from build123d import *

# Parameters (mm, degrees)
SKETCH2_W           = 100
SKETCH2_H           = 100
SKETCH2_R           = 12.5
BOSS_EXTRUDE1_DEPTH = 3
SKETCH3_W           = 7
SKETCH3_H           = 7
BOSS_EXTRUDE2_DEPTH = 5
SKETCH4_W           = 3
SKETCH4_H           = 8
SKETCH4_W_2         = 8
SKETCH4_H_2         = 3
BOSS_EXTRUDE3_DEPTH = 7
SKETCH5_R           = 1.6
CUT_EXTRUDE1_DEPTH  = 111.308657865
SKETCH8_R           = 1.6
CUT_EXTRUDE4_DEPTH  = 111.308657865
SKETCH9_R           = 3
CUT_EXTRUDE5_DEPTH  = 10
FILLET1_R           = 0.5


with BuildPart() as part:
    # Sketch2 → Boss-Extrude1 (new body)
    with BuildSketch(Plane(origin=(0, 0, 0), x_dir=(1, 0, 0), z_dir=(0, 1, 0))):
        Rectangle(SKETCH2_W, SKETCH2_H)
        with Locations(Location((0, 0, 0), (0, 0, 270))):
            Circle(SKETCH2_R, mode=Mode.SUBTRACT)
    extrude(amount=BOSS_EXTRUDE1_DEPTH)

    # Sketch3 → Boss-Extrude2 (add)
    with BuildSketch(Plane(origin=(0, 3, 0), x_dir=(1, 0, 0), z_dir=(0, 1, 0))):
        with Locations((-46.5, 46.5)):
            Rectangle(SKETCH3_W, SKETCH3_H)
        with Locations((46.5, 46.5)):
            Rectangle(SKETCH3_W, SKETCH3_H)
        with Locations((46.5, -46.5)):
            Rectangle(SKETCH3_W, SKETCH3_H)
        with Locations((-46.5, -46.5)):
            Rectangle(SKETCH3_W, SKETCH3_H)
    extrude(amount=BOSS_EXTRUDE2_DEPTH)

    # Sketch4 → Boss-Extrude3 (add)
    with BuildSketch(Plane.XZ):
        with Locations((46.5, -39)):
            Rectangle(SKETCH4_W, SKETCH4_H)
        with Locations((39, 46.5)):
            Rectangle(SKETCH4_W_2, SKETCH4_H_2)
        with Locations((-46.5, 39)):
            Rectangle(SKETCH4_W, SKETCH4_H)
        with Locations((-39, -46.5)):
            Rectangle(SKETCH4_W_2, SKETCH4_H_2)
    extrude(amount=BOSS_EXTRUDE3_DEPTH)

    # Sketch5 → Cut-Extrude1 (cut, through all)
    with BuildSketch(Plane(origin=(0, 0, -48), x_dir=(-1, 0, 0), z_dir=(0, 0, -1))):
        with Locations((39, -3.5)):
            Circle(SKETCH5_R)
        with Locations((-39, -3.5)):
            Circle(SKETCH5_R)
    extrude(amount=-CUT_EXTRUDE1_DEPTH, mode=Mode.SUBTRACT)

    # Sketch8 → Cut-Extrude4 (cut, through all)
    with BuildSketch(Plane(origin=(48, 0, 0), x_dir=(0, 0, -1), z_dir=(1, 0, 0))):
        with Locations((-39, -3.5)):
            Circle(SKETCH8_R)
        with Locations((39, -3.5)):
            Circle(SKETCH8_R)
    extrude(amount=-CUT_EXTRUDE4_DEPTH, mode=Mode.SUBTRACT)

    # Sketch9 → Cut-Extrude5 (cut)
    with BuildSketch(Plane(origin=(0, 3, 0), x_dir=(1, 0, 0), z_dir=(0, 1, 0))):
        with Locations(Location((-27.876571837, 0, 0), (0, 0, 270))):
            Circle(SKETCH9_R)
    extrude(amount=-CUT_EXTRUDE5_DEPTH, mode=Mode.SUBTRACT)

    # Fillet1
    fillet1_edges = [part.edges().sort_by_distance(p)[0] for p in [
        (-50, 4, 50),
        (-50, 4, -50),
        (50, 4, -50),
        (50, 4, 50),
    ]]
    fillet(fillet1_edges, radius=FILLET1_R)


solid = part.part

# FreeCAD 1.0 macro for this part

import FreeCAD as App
import Part
import Sketcher
from FreeCAD import Vector


def edges_at(feature, points):
    """Names of the edges that pass closest to the given points."""
    edges = feature.Shape.Edges
    near = lambda p: min(range(len(edges)), key=lambda i: edges[i].distToShape(Part.Vertex(*p))[0])
    return sorted({f"Edge{near(p) + 1}" for p in points})


def add_polygon(sketch, points):
    """Adds a closed chain of lines whose ends are joined by coincident constraints."""
    first, n = sketch.GeometryCount, len(points)
    for a, b in zip(points, points[1:] + points[:1]):
        sketch.addGeometry(Part.LineSegment(App.Vector(*a, 0), App.Vector(*b, 0)), False)
    for i in range(n):
        sketch.addConstraint(Sketcher.Constraint("Coincident", first + i, 2, first + (i + 1) % n, 1))

doc = App.newDocument("Part")
body = doc.addObject("PartDesign::Body", "Body")

# Sketch on XZ plane
sketch1 = body.newObject("Sketcher::SketchObject", "Sketch")
sketch1.AttachmentSupport = (doc.getObject("XZ_Plane"), [""])
sketch1.MapMode = "FlatFace"
add_polygon(sketch1, [(-50, -50), (-50, 50), (50, 50), (50, -50)])  # lines 0-3
sketch1.addGeometry(Part.Circle(Vector(0, 0, 0), Vector(0, 0, 1), 12.5), False)  # 4
sketch1.addConstraint([
    Sketcher.Constraint("Vertical", 0),
    Sketcher.Constraint("Horizontal", 1),
    Sketcher.Constraint("Vertical", 2),
    Sketcher.Constraint("Horizontal", 3),
    Sketcher.Constraint("Coincident", 4, 3, -1, 1),
    Sketcher.Constraint("Symmetric", 0, 2, 2, 2, -1, 1),
    Sketcher.Constraint("Equal", 3, 0),
    Sketcher.Constraint("Diameter", 4, 25.0),
    Sketcher.Constraint("DistanceX", 1, 1, 1, 2, 100.0),
])
pad1 = body.newObject("PartDesign::Pad", "Pad")
pad1.Profile = sketch1
pad1.Length = 3
pad1.Reversed = True

# Sketch on XZ plane
sketch2 = body.newObject("Sketcher::SketchObject", "Sketch001")
sketch2.AttachmentSupport = (doc.getObject("XZ_Plane"), [""])
sketch2.MapMode = "FlatFace"
sketch2.AttachmentOffset = App.Placement(Vector(0, 0, -3), App.Rotation())
add_polygon(sketch2, [(-50, -50), (-50, -43), (-43, -43), (-43, -50)])  # lines 0-3
add_polygon(sketch2, [(43, -50), (43, -43), (50, -43), (50, -50)])  # lines 4-7
add_polygon(sketch2, [(43, 43), (43, 50), (50, 50), (50, 43)])  # lines 8-11
add_polygon(sketch2, [(-50, 43), (-50, 50), (-43, 50), (-43, 43)])  # lines 12-15
sketch2.addConstraint([
    Sketcher.Constraint("Vertical", 0),
    Sketcher.Constraint("Horizontal", 1),
    Sketcher.Constraint("Vertical", 2),
    Sketcher.Constraint("Horizontal", 3),
    Sketcher.Constraint("Vertical", 4),
    Sketcher.Constraint("Horizontal", 5),
    Sketcher.Constraint("Vertical", 6),
    Sketcher.Constraint("Horizontal", 7),
    Sketcher.Constraint("Vertical", 8),
    Sketcher.Constraint("Horizontal", 9),
    Sketcher.Constraint("Vertical", 10),
    Sketcher.Constraint("Horizontal", 11),
    Sketcher.Constraint("Vertical", 12),
    Sketcher.Constraint("Horizontal", 13),
    Sketcher.Constraint("Vertical", 14),
    Sketcher.Constraint("Horizontal", 15),
    Sketcher.Constraint("Symmetric", 2, 2, 8, 2, -1, 1),
    Sketcher.Constraint("Symmetric", 0, 2, 10, 2, -1, 1),
    Sketcher.Constraint("Symmetric", 6, 2, 12, 2, -1, 1),
    Sketcher.Constraint("Symmetric", 4, 2, 14, 2, -1, 1),
    Sketcher.Constraint("Symmetric", 1, 2, 4, 2, -2),
    Sketcher.Constraint("Symmetric", 3, 2, 6, 2, -2),
    Sketcher.Constraint("Equal", 15, 0),
    Sketcher.Constraint("DistanceX", 1, 1, 1, 2, 7.0),
    Sketcher.Constraint("DistanceX", 0, 2, -1, 1, 50.0),
    Sketcher.Constraint("DistanceY", 0, 2, -1, 1, 43.0),
])
pad2 = body.newObject("PartDesign::Pad", "Pad001")
pad2.Profile = sketch2
pad2.Length = 5
pad2.Reversed = True

# Sketch on XZ plane
sketch3 = body.newObject("Sketcher::SketchObject", "Sketch002")
sketch3.AttachmentSupport = (doc.getObject("XZ_Plane"), [""])
sketch3.MapMode = "FlatFace"
add_polygon(sketch3, [(45, -35), (45, -43), (48, -43), (48, -35)])  # lines 0-3
add_polygon(sketch3, [(35, 48), (35, 45), (43, 45), (43, 48)])  # lines 4-7
add_polygon(sketch3, [(-48, 43), (-48, 35), (-45, 35), (-45, 43)])  # lines 8-11
add_polygon(sketch3, [(-43, -45), (-43, -48), (-35, -48), (-35, -45)])  # lines 12-15
sketch3.addConstraint([
    Sketcher.Constraint("Vertical", 0),
    Sketcher.Constraint("Horizontal", 1),
    Sketcher.Constraint("Vertical", 2),
    Sketcher.Constraint("Horizontal", 3),
    Sketcher.Constraint("Vertical", 4),
    Sketcher.Constraint("Horizontal", 5),
    Sketcher.Constraint("Vertical", 6),
    Sketcher.Constraint("Horizontal", 7),
    Sketcher.Constraint("Vertical", 8),
    Sketcher.Constraint("Horizontal", 9),
    Sketcher.Constraint("Vertical", 10),
    Sketcher.Constraint("Horizontal", 11),
    Sketcher.Constraint("Vertical", 12),
    Sketcher.Constraint("Horizontal", 13),
    Sketcher.Constraint("Vertical", 14),
    Sketcher.Constraint("Horizontal", 15),
    Sketcher.Constraint("Symmetric", 2, 2, 8, 2, -1, 1),
    Sketcher.Constraint("Symmetric", 0, 2, 10, 2, -1, 1),
    Sketcher.Constraint("Symmetric", 6, 2, 12, 2, -1, 1),
    Sketcher.Constraint("Symmetric", 4, 2, 14, 2, -1, 1),
    Sketcher.Constraint("Equal", 15, 0),
    Sketcher.Constraint("Equal", 11, 4),
    Sketcher.Constraint("DistanceX", 1, 1, 1, 2, 3.0),
    Sketcher.Constraint("DistanceX", 5, 1, 5, 2, 8.0),
    Sketcher.Constraint("DistanceX", -1, 1, 0, 2, 45.0),
    Sketcher.Constraint("DistanceY", 0, 2, -1, 1, 43.0),
    Sketcher.Constraint("DistanceX", -1, 1, 4, 2, 35.0),
    Sketcher.Constraint("DistanceY", -1, 1, 4, 2, 45.0),
])
pad3 = body.newObject("PartDesign::Pad", "Pad002")
pad3.Profile = sketch3
pad3.Length = 7

# Sketch on XY plane
sketch4 = body.newObject("Sketcher::SketchObject", "Sketch003")
sketch4.AttachmentSupport = (doc.getObject("XY_Plane"), [""])
sketch4.MapMode = "FlatFace"
sketch4.AttachmentOffset = App.Placement(Vector(0, 0, -48), App.Rotation())
sketch4.addGeometry([
    Part.Circle(Vector(-39, -3.5, 0), Vector(0, 0, 1), 1.6),
    Part.Circle(Vector(39, -3.5, 0), Vector(0, 0, 1), 1.6),
], False)
sketch4.addConstraint([
    Sketcher.Constraint("Equal", 0, 1),
    Sketcher.Constraint("Symmetric", 0, 3, 1, 3, -2),
    Sketcher.Constraint("Diameter", 0, 3.2),
    Sketcher.Constraint("DistanceX", 0, 3, -1, 1, 39.0),
    Sketcher.Constraint("DistanceY", 0, 3, -1, 1, 3.5),
])
pocket1 = body.newObject("PartDesign::Pocket", "Pocket")
pocket1.Profile = sketch4
pocket1.Type = "ThroughAll"
pocket1.Reversed = True

# Sketch on YZ plane
sketch5 = body.newObject("Sketcher::SketchObject", "Sketch004")
sketch5.AttachmentSupport = (doc.getObject("YZ_Plane"), [""])
sketch5.MapMode = "FlatFace"
sketch5.AttachmentOffset = App.Placement(Vector(0, 0, 48), App.Rotation())
sketch5.addGeometry([
    Part.Circle(Vector(-3.5, 39, 0), Vector(0, 0, 1), 1.6),
    Part.Circle(Vector(-3.5, -39, 0), Vector(0, 0, 1), 1.6),
], False)
sketch5.addConstraint([
    Sketcher.Constraint("Equal", 0, 1),
    Sketcher.Constraint("Symmetric", 0, 3, 1, 3, -1),
    Sketcher.Constraint("Diameter", 0, 3.2),
    Sketcher.Constraint("DistanceY", -1, 1, 0, 3, 39.0),
    Sketcher.Constraint("DistanceX", 0, 3, -1, 1, 3.5),
])
pocket2 = body.newObject("PartDesign::Pocket", "Pocket001")
pocket2.Profile = sketch5
pocket2.Type = "ThroughAll"

# Sketch on XZ plane
sketch6 = body.newObject("Sketcher::SketchObject", "Sketch005")
sketch6.AttachmentSupport = (doc.getObject("XZ_Plane"), [""])
sketch6.MapMode = "FlatFace"
sketch6.AttachmentOffset = App.Placement(Vector(0, 0, -3), App.Rotation())
sketch6.addGeometry(Part.Circle(Vector(-27.876572, 0, 0), Vector(0, 0, 1), 3), False)
sketch6.addConstraint([
    Sketcher.Constraint("PointOnObject", 0, 3, -1),
    Sketcher.Constraint("Diameter", 0, 6.0),
    Sketcher.Constraint("DistanceX", 0, 3, -1, 1, 27.876572),
])
pocket3 = body.newObject("PartDesign::Pocket", "Pocket002")
pocket3.Profile = sketch6
pocket3.Length = 10
pocket3.Reversed = True
doc.recompute()

fillet = body.newObject("PartDesign::Fillet", "Fillet")
fillet.Base = (pocket3, edges_at(pocket3, [
    (-50, 4, 50),
    (-50, 4, -50),
    (50, 4, -50),
    (50, 4, 50),
]))
fillet.Radius = 0.5

doc.recompute()
